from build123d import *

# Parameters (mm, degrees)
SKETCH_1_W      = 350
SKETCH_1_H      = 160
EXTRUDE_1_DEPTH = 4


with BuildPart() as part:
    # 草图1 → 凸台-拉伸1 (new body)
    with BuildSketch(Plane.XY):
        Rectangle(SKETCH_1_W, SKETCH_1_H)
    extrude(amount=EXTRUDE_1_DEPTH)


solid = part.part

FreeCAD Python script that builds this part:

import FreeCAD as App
import Part
import Sketcher

V = App.Vector


def add_polygon(sketch, points):
    """Adds a closed chain of lines whose ends are joined by coincident constraints."""
    first, n = sketch.GeometryCount, len(points)
    for a, b in zip(points, points[1:] + points[:1]):
        sketch.addGeometry(Part.LineSegment(App.Vector(*a, 0), App.Vector(*b, 0)), False)
    for i in range(n):
        sketch.addConstraint(Sketcher.Constraint("Coincident", first + i, 2, first + (i + 1) % n, 1))

doc = App.newDocument("Part")
body = doc.addObject("PartDesign::Body", "Body")

sketch1 = body.newObject("Sketcher::SketchObject", "Sketch")
sketch1.AttachmentSupport = (doc.getObject("XY_Plane"), [""])
sketch1.MapMode = "FlatFace"
add_polygon(sketch1, [(-175, 80), (-175, -80), (175, -80), (175, 80)])
sketch1.addConstraint([
    Sketcher.Constraint("Vertical", 0),
    Sketcher.Constraint("Horizontal", 1),
    Sketcher.Constraint("Vertical", 2),
    Sketcher.Constraint("Horizontal", 3),
    Sketcher.Constraint("Symmetric", 0, 2, 2, 2, -1, 1),
    Sketcher.Constraint("DistanceX", 1, 1, 1, 2, 350.0),
    Sketcher.Constraint("DistanceY", 0, 2, 0, 1, 160.0),
])
pad1 = body.newObject("PartDesign::Pad", "Pad")
pad1.Profile = sketch1
pad1.Length = 4

doc.recompute()
